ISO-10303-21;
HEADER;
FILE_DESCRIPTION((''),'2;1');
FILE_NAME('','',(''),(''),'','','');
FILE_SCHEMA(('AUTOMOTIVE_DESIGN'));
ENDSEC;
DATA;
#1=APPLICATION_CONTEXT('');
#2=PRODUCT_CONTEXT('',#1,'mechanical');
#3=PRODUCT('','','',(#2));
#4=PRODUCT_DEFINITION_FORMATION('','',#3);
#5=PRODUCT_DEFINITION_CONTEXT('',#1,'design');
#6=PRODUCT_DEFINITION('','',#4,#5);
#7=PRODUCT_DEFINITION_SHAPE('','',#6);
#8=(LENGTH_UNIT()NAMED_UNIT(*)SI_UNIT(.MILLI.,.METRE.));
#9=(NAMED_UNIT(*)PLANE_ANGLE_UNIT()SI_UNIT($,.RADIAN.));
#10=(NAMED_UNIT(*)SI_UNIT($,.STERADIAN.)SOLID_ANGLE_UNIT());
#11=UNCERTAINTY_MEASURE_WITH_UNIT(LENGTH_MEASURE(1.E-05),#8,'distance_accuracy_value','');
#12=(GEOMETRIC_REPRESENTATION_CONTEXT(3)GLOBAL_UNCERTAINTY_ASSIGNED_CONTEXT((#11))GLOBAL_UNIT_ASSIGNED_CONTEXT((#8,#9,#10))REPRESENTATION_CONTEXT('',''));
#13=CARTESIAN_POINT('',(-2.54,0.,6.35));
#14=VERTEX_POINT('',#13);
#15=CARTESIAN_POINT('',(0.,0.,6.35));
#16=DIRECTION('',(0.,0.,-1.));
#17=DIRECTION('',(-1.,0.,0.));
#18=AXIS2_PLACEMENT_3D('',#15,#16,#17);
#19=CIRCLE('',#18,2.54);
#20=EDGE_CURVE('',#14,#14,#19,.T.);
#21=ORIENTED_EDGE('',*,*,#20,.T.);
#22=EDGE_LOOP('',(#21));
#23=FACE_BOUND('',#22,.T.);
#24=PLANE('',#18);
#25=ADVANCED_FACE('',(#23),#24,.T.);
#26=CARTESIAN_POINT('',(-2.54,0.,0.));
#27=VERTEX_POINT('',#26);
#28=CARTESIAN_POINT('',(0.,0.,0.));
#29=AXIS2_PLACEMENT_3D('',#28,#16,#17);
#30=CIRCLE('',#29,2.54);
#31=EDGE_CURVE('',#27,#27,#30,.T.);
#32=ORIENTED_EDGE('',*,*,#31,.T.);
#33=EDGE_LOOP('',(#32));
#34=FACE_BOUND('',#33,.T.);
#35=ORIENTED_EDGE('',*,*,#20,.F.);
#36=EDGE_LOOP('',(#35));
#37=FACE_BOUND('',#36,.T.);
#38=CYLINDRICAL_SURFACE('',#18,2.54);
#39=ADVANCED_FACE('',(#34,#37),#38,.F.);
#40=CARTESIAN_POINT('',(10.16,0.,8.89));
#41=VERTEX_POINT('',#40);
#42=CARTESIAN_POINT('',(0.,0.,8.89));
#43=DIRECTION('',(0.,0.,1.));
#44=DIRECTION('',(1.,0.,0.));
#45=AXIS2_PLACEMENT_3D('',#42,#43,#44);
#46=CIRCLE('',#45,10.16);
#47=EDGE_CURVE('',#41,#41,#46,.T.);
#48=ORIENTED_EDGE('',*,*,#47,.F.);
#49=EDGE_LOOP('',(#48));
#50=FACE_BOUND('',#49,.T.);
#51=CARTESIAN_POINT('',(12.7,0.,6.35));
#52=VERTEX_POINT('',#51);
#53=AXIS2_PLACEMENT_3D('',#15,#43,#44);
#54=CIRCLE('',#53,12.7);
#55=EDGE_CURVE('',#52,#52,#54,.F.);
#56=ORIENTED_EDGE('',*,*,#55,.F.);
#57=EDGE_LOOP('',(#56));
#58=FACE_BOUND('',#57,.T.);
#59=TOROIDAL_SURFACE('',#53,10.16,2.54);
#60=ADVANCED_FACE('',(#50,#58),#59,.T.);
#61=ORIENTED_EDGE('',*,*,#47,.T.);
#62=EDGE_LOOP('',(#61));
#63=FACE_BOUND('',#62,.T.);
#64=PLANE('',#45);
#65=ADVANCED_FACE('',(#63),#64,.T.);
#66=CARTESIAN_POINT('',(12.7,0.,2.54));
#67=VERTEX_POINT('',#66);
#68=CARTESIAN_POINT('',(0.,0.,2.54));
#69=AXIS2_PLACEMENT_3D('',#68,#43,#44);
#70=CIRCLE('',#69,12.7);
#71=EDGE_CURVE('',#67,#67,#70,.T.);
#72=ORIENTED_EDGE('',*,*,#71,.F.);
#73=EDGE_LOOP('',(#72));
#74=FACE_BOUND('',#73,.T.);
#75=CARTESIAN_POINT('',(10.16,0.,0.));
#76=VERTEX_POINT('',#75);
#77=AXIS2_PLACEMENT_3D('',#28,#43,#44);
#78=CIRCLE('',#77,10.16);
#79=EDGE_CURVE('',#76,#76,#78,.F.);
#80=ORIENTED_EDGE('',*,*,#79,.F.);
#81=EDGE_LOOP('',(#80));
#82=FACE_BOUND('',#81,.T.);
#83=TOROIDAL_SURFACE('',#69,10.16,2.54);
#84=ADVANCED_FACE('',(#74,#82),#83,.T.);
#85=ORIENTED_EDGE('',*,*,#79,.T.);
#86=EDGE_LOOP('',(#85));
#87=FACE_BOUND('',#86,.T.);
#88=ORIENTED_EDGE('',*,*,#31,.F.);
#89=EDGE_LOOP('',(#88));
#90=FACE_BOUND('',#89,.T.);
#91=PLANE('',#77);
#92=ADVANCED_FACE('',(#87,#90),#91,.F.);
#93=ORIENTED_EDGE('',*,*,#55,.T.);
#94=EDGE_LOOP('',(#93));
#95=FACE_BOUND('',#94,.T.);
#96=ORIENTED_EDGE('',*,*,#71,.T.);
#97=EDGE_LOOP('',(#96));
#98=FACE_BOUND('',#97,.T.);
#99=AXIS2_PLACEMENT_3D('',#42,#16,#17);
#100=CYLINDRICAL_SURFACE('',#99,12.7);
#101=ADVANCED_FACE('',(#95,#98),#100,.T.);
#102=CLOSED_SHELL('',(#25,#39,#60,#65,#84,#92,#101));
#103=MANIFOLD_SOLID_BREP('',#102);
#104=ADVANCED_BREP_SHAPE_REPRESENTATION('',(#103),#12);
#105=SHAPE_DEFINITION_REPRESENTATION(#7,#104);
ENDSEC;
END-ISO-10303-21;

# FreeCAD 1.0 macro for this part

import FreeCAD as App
import Part
import Sketcher
Q = App.Units.Quantity


def edges_at(feature, points):
    """Names of the edges that pass closest to the given points."""
    edges = feature.Shape.Edges
    near = lambda p: min(range(len(edges)), key=lambda i: edges[i].distToShape(Part.Vertex(*p))[0])
    return sorted({f"Edge{near(p) + 1}" for p in points})

doc = App.newDocument("Part")
params = doc.addObject("Spreadsheet::Sheet", "Params")
for row, (alias, value) in enumerate([
    ("sketch1_diameter", "1 in"),
    ("pad1_length", "0.35 in"),
    ("sketch2_diameter", "0.2 in"),
    ("pocket1_length", "0.25 in"),
    ("fillet_radius", "0.1 in"),
], start=1):
    params.set(f"A{row}", alias)
    params.set(f"B{row}", "=" + value)
    params.setAlias(f"B{row}", alias)

body = doc.addObject("PartDesign::Body", "Body")

# Sketch on XY plane
sketch1 = doc.addObject("Sketcher::SketchObject", "Sketch")
body.addObject(sketch1)
sketch1.AttachmentSupport = (doc.XY_Plane, [""])
sketch1.MapMode = "FlatFace"
sketch1.addGeometry(Part.Circle(App.Vector(0, 0, 0), App.Vector(0, 0, 1), 13), False)
sketch1.addConstraint([
    Sketcher.Constraint("Coincident", 0, 3, -1, 1),
    Sketcher.Constraint("Diameter", 0, Q("1 in")),
])
sketch1.setExpression("Constraints[1]", "Params.sketch1_diameter")
pad1 = doc.addObject("PartDesign::Pad", "Pad")
body.addObject(pad1)
pad1.Profile = sketch1
pad1.setExpression("Length", "Params.pad1_length")

# Sketch on XY plane
sketch2 = doc.addObject("Sketcher::SketchObject", "Sketch001")
body.addObject(sketch2)
sketch2.AttachmentSupport = (doc.XY_Plane, [""])
sketch2.MapMode = "FlatFace"
sketch2.addGeometry(Part.Circle(App.Vector(0, 0, 0), App.Vector(0, 0, 1), 2.5), False)
sketch2.addConstraint([
    Sketcher.Constraint("Coincident", 0, 3, -1, 1),
    Sketcher.Constraint("Diameter", 0, Q("0.2 in")),
])
sketch2.setExpression("Constraints[1]", "Params.sketch2_diameter")
pocket1 = doc.addObject("PartDesign::Pocket", "Pocket")
body.addObject(pocket1)
pocket1.Profile = sketch2
pocket1.setExpression("Length", "Params.pocket1_length")
pocket1.Reversed = True
doc.recompute()

fillet = doc.addObject("PartDesign::Fillet", "Fillet")
body.addObject(fillet)
fillet.Base = (pocket1, edges_at(pocket1, [(-12.7, 0, 0), (-12.7, 0, 8.89)]))
fillet.setExpression("Radius", "Params.fillet_radius")

doc.recompute()
